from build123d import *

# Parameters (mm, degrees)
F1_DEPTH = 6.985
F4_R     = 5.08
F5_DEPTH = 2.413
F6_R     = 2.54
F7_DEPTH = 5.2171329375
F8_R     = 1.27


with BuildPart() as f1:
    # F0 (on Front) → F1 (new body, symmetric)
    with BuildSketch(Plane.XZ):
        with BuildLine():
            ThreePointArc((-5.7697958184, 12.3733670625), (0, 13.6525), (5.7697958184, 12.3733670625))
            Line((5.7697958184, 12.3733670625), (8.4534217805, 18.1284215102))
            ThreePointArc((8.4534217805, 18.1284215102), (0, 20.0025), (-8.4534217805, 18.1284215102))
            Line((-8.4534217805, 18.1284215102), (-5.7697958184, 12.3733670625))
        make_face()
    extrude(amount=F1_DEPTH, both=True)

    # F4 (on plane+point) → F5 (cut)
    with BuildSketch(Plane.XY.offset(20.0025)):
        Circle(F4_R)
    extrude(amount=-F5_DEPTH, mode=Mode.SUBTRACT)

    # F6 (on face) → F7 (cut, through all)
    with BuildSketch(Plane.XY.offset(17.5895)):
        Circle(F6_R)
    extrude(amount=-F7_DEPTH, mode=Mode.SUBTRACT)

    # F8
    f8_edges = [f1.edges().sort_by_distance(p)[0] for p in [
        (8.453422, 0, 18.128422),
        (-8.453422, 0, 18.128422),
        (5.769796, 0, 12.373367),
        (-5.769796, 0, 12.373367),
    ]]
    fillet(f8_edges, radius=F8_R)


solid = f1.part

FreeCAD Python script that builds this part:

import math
import FreeCAD as App
import Part
import Sketcher
from FreeCAD import Vector
Q = App.Units.Quantity


def edges_at(feature, points):
    """Names of the edges that pass closest to the given points."""
    edges = feature.Shape.Edges
    near = lambda p: min(range(len(edges)), key=lambda i: edges[i].distToShape(Part.Vertex(*p))[0])
    return sorted({f"Edge{near(p) + 1}" for p in points})

doc = App.newDocument("Part")
body = doc.addObject("PartDesign::Body", "Body")

# Sketch on XZ plane
sketch1 = body.newObject("Sketcher::SketchObject", "Sketch")
sketch1.AttachmentSupport = (doc.getObject("XZ_Plane"), [""])
sketch1.MapMode = "FlatFace"
sketch1.addGeometry([
    Part.ArcOfCircle(Part.Circle(Vector(0, 0, 0), Vector(0, 0, 1), 14), math.radians(65), math.radians(115)),
    Part.LineSegment(Vector(6, 12, 0), Vector(8, 18, 0)),
    Part.ArcOfCircle(Part.Circle(Vector(0, 0, 0), Vector(0, 0, 1), 20), math.radians(65), math.radians(115)),
    Part.LineSegment(Vector(-8, 18, 0), Vector(-6, 12, 0)),
], False)
sketch1.addConstraint([
    Sketcher.Constraint("Coincident", 0, 1, 1, 1),
    Sketcher.Constraint("Coincident", 1, 2, 2, 1),
    Sketcher.Constraint("Coincident", 2, 2, 3, 1),
    Sketcher.Constraint("Coincident", 3, 2, 0, 2),
    Sketcher.Constraint("Coincident", 0, 3, -1, 1),
    Sketcher.Constraint("Coincident", 2, 3, -1, 1),
    Sketcher.Constraint("Horizontal", 1, 2, 2, 2),
    Sketcher.Constraint("Horizontal", 0, 1, 3, 2),
    Sketcher.Constraint("Angle", 1, Q("65 deg")),
    Sketcher.Constraint("Radius", 0, Q("0.5375 in")),
    Sketcher.Constraint("Radius", 2, Q("0.7875 in")),
    Sketcher.Constraint("DistanceX", -1, 1, 1, 2, Q("8.453422 mm")),
])
pad1 = body.newObject("PartDesign::Pad", "Pad")
pad1.Profile = sketch1
pad1.Length = Q("0.55 in")
pad1.Midplane = True

# Sketch on XY plane
sketch2 = body.newObject("Sketcher::SketchObject", "Sketch001")
sketch2.AttachmentSupport = (doc.getObject("XY_Plane"), [""])
sketch2.MapMode = "FlatFace"
sketch2.AttachmentOffset = App.Placement(Vector(0, 0, 0.7875 * 25.4), App.Rotation())
sketch2.addGeometry(Part.Circle(Vector(0, 0, 0), Vector(0, 0, 1), 5), False)
sketch2.addConstraint([
    Sketcher.Constraint("Coincident", 0, 3, -1, 1),
    Sketcher.Constraint("Diameter", 0, Q("0.4 in")),
])
pocket1 = body.newObject("PartDesign::Pocket", "Pocket")
pocket1.Profile = sketch2
pocket1.Length = Q("0.095 in")

# Sketch on XY plane
sketch3 = body.newObject("Sketcher::SketchObject", "Sketch002")
sketch3.AttachmentSupport = (doc.getObject("XY_Plane"), [""])
sketch3.MapMode = "FlatFace"
sketch3.AttachmentOffset = App.Placement(Vector(0, 0, 0.6925 * 25.4), App.Rotation())
sketch3.addGeometry(Part.Circle(Vector(0, 0, 0), Vector(0, 0, 1), 2.5), False)
sketch3.addConstraint([
    Sketcher.Constraint("Coincident", 0, 3, -1, 1),
    Sketcher.Constraint("Diameter", 0, Q("0.2 in")),
])
pocket2 = body.newObject("PartDesign::Pocket", "Pocket001")
pocket2.Profile = sketch3
pocket2.Type = "ThroughAll"
doc.recompute()

fillet = body.newObject("PartDesign::Fillet", "Fillet")
fillet.Base = (pocket2, edges_at(pocket2, [
    (8.453, 0, 18.128),
    (-8.453, 0, 18.128),
    (5.77, 0, 12.373),
    (-5.77, 0, 12.373),
]))
fillet.Radius = Q("0.05 in")

doc.recompute()
